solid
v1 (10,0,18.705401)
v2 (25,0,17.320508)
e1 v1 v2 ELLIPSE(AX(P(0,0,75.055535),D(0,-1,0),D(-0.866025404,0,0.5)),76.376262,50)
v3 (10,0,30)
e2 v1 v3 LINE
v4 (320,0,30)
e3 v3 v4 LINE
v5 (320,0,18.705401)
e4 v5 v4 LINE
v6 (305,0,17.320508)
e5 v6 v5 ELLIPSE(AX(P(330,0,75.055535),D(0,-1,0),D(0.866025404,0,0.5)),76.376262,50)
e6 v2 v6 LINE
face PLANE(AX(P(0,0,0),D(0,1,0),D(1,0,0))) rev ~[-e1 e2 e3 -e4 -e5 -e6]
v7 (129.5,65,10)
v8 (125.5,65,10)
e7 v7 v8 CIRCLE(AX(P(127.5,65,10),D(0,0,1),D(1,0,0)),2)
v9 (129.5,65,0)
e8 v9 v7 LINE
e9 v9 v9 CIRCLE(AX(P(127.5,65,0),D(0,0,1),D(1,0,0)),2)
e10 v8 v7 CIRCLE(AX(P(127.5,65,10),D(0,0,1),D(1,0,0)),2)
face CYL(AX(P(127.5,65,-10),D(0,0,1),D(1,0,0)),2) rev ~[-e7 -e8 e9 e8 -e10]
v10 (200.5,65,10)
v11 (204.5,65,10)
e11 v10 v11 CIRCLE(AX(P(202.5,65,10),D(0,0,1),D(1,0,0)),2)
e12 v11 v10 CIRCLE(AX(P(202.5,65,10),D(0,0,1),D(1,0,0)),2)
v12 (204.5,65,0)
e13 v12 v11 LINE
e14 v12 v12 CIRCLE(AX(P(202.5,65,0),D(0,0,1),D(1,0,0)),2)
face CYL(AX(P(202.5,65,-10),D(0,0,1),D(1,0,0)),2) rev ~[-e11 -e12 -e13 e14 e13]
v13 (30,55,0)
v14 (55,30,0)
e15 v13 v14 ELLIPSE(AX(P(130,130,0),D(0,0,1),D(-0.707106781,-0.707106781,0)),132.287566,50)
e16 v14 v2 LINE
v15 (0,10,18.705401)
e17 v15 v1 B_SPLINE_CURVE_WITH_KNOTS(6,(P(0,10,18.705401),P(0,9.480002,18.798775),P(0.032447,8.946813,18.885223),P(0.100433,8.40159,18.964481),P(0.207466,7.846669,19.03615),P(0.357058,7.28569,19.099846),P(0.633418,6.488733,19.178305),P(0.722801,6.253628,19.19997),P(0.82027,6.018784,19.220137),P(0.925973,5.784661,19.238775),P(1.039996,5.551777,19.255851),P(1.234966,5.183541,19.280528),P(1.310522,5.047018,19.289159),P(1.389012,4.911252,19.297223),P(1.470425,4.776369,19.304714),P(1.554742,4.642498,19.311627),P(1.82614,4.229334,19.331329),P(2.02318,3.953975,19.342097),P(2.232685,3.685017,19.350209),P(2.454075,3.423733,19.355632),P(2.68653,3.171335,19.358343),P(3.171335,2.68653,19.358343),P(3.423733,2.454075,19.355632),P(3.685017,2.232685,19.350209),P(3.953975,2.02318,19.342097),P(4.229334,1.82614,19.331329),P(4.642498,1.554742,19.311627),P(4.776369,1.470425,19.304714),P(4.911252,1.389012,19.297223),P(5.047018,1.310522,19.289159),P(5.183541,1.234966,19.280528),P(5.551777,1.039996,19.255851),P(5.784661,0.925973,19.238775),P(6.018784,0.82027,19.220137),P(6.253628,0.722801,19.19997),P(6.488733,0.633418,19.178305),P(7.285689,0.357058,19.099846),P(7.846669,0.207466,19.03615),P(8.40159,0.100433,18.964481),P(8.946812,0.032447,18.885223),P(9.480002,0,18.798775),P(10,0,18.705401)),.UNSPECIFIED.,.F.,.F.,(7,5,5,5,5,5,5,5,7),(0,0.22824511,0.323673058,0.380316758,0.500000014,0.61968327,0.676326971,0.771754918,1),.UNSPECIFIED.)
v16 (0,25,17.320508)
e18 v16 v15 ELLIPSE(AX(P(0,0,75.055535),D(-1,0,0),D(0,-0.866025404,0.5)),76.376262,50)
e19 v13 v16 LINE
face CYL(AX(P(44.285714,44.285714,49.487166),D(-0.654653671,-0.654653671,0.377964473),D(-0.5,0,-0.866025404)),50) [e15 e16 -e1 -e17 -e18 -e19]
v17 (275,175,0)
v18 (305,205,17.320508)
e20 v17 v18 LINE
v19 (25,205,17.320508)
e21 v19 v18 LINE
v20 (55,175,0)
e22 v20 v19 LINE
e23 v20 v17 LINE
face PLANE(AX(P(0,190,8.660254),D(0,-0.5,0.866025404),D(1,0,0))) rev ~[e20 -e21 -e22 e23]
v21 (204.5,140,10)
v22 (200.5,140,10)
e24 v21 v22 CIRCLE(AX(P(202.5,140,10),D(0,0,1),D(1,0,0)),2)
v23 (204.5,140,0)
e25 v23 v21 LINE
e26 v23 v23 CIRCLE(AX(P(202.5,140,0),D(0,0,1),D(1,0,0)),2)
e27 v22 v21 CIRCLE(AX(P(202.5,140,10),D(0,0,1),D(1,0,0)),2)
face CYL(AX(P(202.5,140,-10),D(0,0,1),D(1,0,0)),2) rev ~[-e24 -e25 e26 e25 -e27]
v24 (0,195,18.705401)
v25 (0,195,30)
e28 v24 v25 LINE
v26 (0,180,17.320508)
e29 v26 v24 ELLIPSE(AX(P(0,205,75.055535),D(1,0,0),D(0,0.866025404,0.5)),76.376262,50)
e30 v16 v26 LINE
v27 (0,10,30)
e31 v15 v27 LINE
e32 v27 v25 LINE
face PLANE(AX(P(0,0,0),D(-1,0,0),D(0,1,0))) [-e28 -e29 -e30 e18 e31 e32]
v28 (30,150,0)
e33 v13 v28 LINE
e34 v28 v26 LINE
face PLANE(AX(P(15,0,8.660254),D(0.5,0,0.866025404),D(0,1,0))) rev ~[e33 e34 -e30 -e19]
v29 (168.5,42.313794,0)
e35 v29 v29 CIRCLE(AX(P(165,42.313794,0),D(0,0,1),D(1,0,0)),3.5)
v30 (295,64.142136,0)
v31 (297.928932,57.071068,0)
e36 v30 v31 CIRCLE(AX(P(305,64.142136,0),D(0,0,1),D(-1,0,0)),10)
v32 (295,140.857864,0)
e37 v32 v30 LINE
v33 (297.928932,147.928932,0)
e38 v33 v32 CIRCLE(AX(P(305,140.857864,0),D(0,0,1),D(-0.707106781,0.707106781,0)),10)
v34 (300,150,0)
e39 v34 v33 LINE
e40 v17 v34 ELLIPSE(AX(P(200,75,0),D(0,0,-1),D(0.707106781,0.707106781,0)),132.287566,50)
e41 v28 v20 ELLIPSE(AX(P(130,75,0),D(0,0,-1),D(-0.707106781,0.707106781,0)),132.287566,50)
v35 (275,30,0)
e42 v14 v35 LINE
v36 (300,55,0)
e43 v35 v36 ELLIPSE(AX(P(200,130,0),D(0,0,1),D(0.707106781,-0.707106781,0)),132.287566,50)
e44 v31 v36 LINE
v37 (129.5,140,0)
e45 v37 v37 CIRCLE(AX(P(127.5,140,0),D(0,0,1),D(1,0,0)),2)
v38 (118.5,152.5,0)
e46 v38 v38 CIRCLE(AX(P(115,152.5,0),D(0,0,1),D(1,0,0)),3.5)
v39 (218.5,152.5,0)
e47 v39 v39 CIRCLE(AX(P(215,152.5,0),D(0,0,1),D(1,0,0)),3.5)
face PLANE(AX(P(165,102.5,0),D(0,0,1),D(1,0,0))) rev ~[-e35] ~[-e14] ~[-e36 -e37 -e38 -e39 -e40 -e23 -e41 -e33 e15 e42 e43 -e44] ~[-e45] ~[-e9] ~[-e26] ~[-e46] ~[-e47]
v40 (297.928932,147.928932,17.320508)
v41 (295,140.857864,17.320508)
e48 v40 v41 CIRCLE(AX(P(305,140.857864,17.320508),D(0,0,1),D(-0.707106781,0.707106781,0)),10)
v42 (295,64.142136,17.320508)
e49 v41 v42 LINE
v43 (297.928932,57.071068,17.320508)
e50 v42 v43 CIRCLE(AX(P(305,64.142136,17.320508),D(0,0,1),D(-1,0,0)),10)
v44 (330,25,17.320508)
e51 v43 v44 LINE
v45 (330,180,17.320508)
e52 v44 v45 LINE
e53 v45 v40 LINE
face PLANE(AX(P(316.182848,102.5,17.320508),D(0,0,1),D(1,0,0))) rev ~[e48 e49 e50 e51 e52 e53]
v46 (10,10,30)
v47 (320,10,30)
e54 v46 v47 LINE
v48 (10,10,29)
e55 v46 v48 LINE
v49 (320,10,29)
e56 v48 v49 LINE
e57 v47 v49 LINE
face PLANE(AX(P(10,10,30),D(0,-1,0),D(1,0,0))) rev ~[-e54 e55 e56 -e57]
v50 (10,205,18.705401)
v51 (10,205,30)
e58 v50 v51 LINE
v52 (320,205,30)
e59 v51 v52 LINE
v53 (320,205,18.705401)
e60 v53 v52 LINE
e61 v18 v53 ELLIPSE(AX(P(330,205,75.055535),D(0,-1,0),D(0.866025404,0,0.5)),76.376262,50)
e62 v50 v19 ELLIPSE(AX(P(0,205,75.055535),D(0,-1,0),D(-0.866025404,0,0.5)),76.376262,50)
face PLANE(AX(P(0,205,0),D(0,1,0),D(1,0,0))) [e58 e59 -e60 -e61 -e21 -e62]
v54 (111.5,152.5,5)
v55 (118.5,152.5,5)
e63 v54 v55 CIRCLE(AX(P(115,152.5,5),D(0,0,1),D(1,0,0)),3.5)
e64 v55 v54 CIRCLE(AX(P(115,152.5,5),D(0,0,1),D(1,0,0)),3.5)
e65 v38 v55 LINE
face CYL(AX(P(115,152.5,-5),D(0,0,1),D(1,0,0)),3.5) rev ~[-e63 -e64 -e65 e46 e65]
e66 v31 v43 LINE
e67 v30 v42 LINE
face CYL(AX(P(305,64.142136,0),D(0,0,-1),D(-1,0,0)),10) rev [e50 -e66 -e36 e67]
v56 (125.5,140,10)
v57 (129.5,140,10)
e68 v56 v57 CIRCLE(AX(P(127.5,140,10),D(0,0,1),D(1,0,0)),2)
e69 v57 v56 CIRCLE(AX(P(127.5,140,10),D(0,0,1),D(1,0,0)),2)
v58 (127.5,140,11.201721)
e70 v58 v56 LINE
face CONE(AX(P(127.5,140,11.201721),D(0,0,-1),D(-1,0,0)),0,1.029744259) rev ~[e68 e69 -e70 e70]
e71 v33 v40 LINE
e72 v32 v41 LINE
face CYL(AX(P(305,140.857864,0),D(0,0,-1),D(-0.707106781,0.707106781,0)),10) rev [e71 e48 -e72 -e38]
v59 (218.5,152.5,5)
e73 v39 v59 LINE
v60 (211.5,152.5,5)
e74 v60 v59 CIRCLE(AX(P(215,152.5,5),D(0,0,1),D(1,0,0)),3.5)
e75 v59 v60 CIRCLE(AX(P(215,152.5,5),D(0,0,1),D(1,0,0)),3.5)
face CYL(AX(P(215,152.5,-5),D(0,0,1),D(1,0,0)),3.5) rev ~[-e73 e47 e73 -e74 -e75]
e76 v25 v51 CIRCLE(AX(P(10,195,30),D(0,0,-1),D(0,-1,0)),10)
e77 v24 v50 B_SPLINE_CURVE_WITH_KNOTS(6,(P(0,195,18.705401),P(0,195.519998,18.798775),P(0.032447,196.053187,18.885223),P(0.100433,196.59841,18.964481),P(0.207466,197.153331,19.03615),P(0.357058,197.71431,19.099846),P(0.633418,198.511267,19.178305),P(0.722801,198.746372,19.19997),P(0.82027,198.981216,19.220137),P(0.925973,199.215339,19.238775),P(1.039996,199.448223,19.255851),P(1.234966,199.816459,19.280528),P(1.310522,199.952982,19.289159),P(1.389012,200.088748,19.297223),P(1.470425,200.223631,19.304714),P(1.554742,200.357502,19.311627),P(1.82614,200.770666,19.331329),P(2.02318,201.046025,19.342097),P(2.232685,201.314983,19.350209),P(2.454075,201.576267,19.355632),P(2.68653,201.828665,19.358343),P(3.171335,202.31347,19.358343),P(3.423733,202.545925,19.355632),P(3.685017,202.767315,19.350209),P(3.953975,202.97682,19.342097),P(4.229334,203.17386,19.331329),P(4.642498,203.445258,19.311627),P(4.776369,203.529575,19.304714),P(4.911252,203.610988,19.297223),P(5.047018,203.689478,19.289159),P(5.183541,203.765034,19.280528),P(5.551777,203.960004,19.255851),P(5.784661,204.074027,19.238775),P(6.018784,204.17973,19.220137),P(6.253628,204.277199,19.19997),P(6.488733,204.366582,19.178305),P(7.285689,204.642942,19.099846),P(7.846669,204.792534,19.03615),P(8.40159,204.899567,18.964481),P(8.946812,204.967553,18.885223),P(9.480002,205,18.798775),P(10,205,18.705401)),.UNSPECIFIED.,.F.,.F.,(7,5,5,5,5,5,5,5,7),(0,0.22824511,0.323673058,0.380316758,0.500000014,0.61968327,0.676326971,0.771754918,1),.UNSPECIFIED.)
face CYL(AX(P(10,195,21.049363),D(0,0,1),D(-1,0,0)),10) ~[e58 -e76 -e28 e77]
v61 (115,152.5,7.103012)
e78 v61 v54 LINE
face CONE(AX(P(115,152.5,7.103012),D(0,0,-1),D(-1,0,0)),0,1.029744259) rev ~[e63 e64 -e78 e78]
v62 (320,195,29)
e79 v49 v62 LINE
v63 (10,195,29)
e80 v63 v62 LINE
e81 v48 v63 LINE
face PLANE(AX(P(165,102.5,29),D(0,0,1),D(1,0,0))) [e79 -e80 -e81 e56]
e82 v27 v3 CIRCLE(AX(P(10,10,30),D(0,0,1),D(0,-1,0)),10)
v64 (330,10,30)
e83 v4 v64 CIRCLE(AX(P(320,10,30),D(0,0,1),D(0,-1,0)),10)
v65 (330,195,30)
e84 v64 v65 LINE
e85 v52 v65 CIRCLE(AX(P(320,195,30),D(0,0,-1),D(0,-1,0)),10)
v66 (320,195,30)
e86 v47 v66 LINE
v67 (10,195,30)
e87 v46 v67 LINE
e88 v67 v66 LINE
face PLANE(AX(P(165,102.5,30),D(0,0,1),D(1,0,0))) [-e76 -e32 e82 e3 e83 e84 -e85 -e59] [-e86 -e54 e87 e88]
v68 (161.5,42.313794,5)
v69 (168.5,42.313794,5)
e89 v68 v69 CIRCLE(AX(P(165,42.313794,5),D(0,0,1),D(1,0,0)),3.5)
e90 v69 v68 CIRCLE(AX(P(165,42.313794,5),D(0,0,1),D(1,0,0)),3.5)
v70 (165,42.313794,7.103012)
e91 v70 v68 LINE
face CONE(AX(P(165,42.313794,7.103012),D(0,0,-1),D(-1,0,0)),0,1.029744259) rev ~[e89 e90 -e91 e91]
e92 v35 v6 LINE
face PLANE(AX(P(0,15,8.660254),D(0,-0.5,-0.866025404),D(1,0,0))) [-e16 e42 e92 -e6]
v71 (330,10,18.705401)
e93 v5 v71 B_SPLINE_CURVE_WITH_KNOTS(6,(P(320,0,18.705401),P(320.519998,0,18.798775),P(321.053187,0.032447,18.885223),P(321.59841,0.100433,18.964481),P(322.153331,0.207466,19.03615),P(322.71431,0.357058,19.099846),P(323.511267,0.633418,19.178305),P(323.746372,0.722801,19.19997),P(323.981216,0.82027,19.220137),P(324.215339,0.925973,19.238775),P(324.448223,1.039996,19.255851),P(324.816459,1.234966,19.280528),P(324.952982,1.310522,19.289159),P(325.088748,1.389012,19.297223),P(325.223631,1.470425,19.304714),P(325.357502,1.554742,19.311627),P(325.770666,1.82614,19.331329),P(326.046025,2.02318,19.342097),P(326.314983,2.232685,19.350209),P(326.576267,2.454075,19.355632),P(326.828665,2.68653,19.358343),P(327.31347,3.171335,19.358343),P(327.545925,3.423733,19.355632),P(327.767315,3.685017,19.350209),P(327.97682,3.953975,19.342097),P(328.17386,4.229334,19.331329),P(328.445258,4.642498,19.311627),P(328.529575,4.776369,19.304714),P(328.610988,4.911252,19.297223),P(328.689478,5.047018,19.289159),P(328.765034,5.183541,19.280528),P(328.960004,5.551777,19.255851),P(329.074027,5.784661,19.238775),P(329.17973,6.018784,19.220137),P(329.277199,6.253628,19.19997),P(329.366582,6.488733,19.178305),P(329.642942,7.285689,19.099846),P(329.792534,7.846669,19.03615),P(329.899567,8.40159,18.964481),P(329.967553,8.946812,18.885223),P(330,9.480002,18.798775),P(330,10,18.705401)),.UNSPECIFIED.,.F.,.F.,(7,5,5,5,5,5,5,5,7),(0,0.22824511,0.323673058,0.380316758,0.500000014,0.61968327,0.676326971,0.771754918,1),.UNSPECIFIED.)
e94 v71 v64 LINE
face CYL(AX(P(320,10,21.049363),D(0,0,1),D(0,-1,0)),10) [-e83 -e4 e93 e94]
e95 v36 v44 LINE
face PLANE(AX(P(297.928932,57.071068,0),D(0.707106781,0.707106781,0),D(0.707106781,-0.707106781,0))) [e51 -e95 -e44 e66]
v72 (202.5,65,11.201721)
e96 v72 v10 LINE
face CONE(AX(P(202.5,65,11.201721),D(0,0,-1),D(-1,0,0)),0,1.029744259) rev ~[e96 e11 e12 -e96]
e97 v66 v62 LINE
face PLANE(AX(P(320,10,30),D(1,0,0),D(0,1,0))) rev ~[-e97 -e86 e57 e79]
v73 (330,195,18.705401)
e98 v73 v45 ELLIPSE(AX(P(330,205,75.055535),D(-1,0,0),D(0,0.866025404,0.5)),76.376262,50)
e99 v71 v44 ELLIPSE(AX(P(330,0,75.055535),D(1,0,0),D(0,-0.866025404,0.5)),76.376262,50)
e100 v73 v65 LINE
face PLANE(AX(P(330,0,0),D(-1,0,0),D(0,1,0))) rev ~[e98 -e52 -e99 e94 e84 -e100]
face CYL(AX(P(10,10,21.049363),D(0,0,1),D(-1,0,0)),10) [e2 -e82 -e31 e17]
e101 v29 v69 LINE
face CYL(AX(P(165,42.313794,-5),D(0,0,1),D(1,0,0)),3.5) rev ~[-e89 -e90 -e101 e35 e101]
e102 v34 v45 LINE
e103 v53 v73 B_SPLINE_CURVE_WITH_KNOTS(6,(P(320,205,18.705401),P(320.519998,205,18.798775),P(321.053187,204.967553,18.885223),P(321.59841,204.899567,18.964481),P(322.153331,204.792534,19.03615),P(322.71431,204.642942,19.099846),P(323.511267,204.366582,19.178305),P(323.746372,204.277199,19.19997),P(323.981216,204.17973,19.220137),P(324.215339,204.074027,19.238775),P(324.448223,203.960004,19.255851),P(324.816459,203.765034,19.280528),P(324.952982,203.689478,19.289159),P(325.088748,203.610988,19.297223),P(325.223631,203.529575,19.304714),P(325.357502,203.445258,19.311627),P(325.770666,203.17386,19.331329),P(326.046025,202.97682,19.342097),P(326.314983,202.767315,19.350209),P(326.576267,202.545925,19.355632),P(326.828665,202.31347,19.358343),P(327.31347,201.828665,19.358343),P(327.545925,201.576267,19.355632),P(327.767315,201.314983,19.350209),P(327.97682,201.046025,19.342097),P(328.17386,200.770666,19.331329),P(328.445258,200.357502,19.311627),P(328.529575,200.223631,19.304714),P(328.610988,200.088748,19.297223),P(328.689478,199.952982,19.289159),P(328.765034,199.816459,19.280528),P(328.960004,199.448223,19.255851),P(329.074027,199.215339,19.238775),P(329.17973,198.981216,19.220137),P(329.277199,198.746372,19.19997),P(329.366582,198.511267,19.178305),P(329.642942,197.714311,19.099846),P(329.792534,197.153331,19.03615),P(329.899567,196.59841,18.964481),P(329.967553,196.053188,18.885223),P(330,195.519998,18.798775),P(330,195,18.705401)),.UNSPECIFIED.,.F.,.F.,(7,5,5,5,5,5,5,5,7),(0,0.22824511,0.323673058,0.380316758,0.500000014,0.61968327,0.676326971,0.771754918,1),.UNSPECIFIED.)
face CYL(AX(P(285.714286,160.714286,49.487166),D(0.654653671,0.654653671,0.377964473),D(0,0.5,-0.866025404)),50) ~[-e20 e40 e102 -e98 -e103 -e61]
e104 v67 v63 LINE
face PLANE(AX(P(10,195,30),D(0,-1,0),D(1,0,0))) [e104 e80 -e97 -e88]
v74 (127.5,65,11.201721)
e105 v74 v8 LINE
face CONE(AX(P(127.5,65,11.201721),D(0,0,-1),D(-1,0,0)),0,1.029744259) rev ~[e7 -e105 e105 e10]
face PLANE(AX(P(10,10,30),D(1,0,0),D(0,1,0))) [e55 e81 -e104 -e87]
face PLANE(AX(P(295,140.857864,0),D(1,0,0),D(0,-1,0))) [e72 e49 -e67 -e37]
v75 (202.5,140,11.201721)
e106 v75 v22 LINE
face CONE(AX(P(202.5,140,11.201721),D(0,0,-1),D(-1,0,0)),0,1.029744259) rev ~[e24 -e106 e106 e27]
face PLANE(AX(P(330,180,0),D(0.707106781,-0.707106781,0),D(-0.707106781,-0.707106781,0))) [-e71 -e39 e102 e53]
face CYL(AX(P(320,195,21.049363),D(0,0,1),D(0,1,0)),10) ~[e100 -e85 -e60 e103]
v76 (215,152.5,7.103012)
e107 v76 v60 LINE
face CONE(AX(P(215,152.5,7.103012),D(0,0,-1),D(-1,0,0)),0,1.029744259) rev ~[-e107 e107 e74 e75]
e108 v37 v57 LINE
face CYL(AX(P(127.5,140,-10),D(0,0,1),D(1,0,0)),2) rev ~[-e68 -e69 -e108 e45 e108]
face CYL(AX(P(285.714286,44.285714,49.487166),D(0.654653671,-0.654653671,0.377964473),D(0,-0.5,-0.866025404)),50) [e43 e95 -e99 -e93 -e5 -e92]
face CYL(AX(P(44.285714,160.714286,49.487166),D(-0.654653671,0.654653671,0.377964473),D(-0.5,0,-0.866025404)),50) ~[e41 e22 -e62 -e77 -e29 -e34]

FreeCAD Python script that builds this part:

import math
import FreeCAD as App
import Part
import Sketcher
Q = App.Units.Quantity


def edges_at(feature, points):
    """Names of the edges that pass closest to the given points."""
    edges = feature.Shape.Edges
    near = lambda p: min(range(len(edges)), key=lambda i: edges[i].distToShape(Part.Vertex(*p))[0])
    return sorted({f"Edge{near(p) + 1}" for p in points})


def add_polygon(sketch, points):
    """Adds a closed chain of lines whose ends are joined by coincident constraints."""
    first, n = sketch.GeometryCount, len(points)
    for a, b in zip(points, points[1:] + points[:1]):
        sketch.addGeometry(Part.LineSegment(App.Vector(*a, 0), App.Vector(*b, 0)), False)
    for i in range(n):
        sketch.addConstraint(Sketcher.Constraint("Coincident", first + i, 2, first + (i + 1) % n, 1))

doc = App.newDocument("Part")
body = doc.addObject("PartDesign::Body", "Body")

sketch1 = doc.addObject("Sketcher::SketchObject", "Sketch")
body.addObject(sketch1)
sketch1.AttachmentSupport = (doc.XY_Plane, [""])
sketch1.MapMode = "FlatFace"
add_polygon(sketch1, [(0, 205), (0, 0), (330, 0), (330, 205)])
sketch1.addConstraint([
    Sketcher.Constraint("Vertical", 0),
    Sketcher.Constraint("Horizontal", 1),
    Sketcher.Constraint("Vertical", 2),
    Sketcher.Constraint("Horizontal", 3),
    Sketcher.Constraint("Coincident", 0, 2, -1, 1),
    Sketcher.Constraint("DistanceX", 1, 1, 1, 2, Q("330 mm")),
    Sketcher.Constraint("DistanceY", 0, 2, 0, 1, Q("205 mm")),
])
pad1 = doc.addObject("PartDesign::Pad", "Pad")
body.addObject(pad1)
pad1.Profile = sketch1
pad1.Length = 30
doc.recompute()

chamfer = doc.addObject("PartDesign::Chamfer", "Chamfer")
body.addObject(chamfer)
chamfer.Base = (pad1, edges_at(pad1, [
    (165, 205, 0),
    (330, 102.5, 0),
    (165, 0, 0),
    (0, 102.5, 0),
]))
chamfer.ChamferType = "Two distances"
chamfer.Size = 30
chamfer.Size2 = 17.320508
chamfer.FlipDirection = True
doc.recompute()

fillet = doc.addObject("PartDesign::Fillet", "Fillet")
body.addObject(fillet)
fillet.Base = (chamfer, edges_at(chamfer, [
    (315, 15, 8.66),
    (15, 15, 8.66),
    (315, 190, 8.66),
    (15, 190, 8.66),
]))
fillet.Radius = 50
doc.recompute()

fillet2 = doc.addObject("PartDesign::Fillet", "Fillet001")
body.addObject(fillet2)
fillet2.Base = (fillet, edges_at(fillet, [
    (0, 205, 25.525),
    (330, 205, 25.525),
    (330, 0, 25.525),
    (0, 0, 25.525),
]))
fillet2.Radius = 10

sketch2 = doc.addObject("Sketcher::SketchObject", "Sketch001")
body.addObject(sketch2)
sketch2.AttachmentSupport = (doc.XY_Plane, [""])
sketch2.MapMode = "FlatFace"
sketch2.AttachmentOffset = App.Placement(App.Vector(0, 0, 30), App.Rotation())
add_polygon(sketch2, [(10, 195), (10, 10), (320, 10), (320, 195)])
sketch2.addConstraint([
    Sketcher.Constraint("Vertical", 0),
    Sketcher.Constraint("Horizontal", 1),
    Sketcher.Constraint("Vertical", 2),
    Sketcher.Constraint("Horizontal", 3),
    Sketcher.Constraint("DistanceX", 1, 1, 1, 2, Q("310 mm")),
    Sketcher.Constraint("DistanceY", 0, 2, 0, 1, Q("185 mm")),
    Sketcher.Constraint("DistanceX", -1, 1, 0, 2, Q("10 mm")),
    Sketcher.Constraint("DistanceY", -1, 1, 0, 2, Q("10 mm")),
])
pocket1 = doc.addObject("PartDesign::Pocket", "Pocket")
body.addObject(pocket1)
pocket1.Profile = sketch2
pocket1.Length = 1

sketch3 = doc.addObject("Sketcher::SketchObject", "Sketch002")
body.addObject(sketch3)
sketch3.AttachmentSupport = (doc.XY_Plane, [""])
sketch3.MapMode = "FlatFace"
sketch3.addGeometry([
    Part.Circle(App.Vector(202.5, 65, 0), App.Vector(0, 0, 1), 2),
    Part.Circle(App.Vector(127.5, 140, 0), App.Vector(0, 0, 1), 2),
    Part.Circle(App.Vector(127.5, 65, 0), App.Vector(0, 0, 1), 2),
    Part.Circle(App.Vector(202.5, 140, 0), App.Vector(0, 0, 1), 2),
], False)
sketch3.addConstraint([
    Sketcher.Constraint("Equal", 0, 1),
    Sketcher.Constraint("Equal", 1, 2),
    Sketcher.Constraint("Equal", 2, 3),
    Sketcher.Constraint("Horizontal", 0, 3, 2, 3),
    Sketcher.Constraint("Horizontal", 1, 3, 3, 3),
    Sketcher.Constraint("Vertical", 1, 3, 2, 3),
    Sketcher.Constraint("Vertical", 0, 3, 3, 3),
    Sketcher.Constraint("Diameter", 0, Q("4 mm")),
    Sketcher.Constraint("DistanceY", -1, 1, 0, 3, Q("65 mm")),
    Sketcher.Constraint("DistanceY", -1, 1, 1, 3, Q("140 mm")),
    Sketcher.Constraint("DistanceX", 1, 3, 0, 3, Q("75 mm")),
    Sketcher.Constraint("DistanceX", -1, 1, 0, 3, Q("202.5 mm")),
])
doc.recompute()
hole = doc.addObject("PartDesign::Hole", "Hole")
body.addObject(hole)
hole.Profile = sketch3
hole.ThreadType = "None"
hole.Diameter = 4
hole.DepthType = "Dimension"
hole.Depth = 10
hole.DrillPoint = "Angled"
hole.DrillPointAngle = 118
hole.Reversed = True

sketch4 = doc.addObject("Sketcher::SketchObject", "Sketch003")
body.addObject(sketch4)
sketch4.AttachmentSupport = (doc.XY_Plane, [""])
sketch4.MapMode = "FlatFace"
sketch4.addGeometry([
    Part.Circle(App.Vector(215, 152.5, 0), App.Vector(0, 0, 1), 3.5),
    Part.Circle(App.Vector(115, 152.5, 0), App.Vector(0, 0, 1), 3.5),
    Part.Circle(App.Vector(165, 42.3, 0), App.Vector(0, 0, 1), 3.5),
], False)
sketch4.addConstraint([
    Sketcher.Constraint("Equal", 0, 1),
    Sketcher.Constraint("Equal", 1, 2),
    Sketcher.Constraint("Horizontal", 0, 3, 1, 3),
    Sketcher.Constraint("Diameter", 0, Q("7 mm")),
    Sketcher.Constraint("DistanceX", -1, 1, 0, 3, Q("215 mm")),
    Sketcher.Constraint("DistanceX", -1, 1, 1, 3, Q("115 mm")),
    Sketcher.Constraint("DistanceX", -1, 1, 2, 3, Q("165 mm")),
    Sketcher.Constraint("DistanceY", -1, 1, 0, 3, Q("152.5 mm")),
    Sketcher.Constraint("DistanceY", -1, 1, 2, 3, Q("42.313794 mm")),
])
doc.recompute()
hole2 = doc.addObject("PartDesign::Hole", "Hole001")
body.addObject(hole2)
hole2.Profile = sketch4
hole2.ThreadType = "None"
hole2.Diameter = 7
hole2.DepthType = "Dimension"
hole2.Depth = 5
hole2.DrillPoint = "Angled"
hole2.DrillPointAngle = 118
hole2.Reversed = True

sketch5 = doc.addObject("Sketcher::SketchObject", "Sketch004")
body.addObject(sketch5)
sketch5.AttachmentSupport = (doc.XY_Plane, [""])
sketch5.MapMode = "FlatFace"
sketch5.addGeometry([
    Part.LineSegment(App.Vector(298, 148, 0), App.Vector(330, 180, 0)),
    Part.LineSegment(App.Vector(330, 180, 0), App.Vector(330, 25, 0)),
    Part.LineSegment(App.Vector(330, 25, 0), App.Vector(298, 57, 0)),
    Part.ArcOfCircle(Part.Circle(App.Vector(305, 64, 0), App.Vector(0, 0, 1), 10), math.radians(180), math.radians(225)),
    Part.LineSegment(App.Vector(295, 64, 0), App.Vector(295, 141, 0)),
    Part.ArcOfCircle(Part.Circle(App.Vector(305, 141, 0), App.Vector(0, 0, 1), 10), math.radians(135), math.radians(180)),
], False)
sketch5.addConstraint([
    Sketcher.Constraint("Coincident", 0, 2, 1, 1),
    Sketcher.Constraint("Coincident", 1, 2, 2, 1),
    Sketcher.Constraint("Tangent", 2, 2, 3, 2),
    Sketcher.Constraint("Tangent", 3, 1, 4, 1),
    Sketcher.Constraint("Tangent", 4, 2, 5, 2),
    Sketcher.Constraint("Tangent", 5, 1, 0, 1),
    Sketcher.Constraint("Vertical", 1),
    Sketcher.Constraint("Vertical", 4),
    Sketcher.Constraint("Equal", 3, 5),
    Sketcher.Constraint("Perpendicular", 0, 2),
    Sketcher.Constraint("Vertical", 2, 2, 5, 1),
    Sketcher.Constraint("Radius", 3, Q("10 mm")),
    Sketcher.Constraint("DistanceY", 1, 2, 1, 1, Q("155 mm")),
    Sketcher.Constraint("DistanceX", -1, 1, 3, 3, Q("305 mm")),
    Sketcher.Constraint("DistanceX", -1, 1, 0, 2, Q("330 mm")),
    Sketcher.Constraint("DistanceY", -1, 1, 0, 2, Q("180 mm")),
])
pocket2 = doc.addObject("PartDesign::Pocket", "Pocket001")
body.addObject(pocket2)
pocket2.Profile = sketch5
pocket2.Length = 17.320508
pocket2.Reversed = True

doc.recompute()
